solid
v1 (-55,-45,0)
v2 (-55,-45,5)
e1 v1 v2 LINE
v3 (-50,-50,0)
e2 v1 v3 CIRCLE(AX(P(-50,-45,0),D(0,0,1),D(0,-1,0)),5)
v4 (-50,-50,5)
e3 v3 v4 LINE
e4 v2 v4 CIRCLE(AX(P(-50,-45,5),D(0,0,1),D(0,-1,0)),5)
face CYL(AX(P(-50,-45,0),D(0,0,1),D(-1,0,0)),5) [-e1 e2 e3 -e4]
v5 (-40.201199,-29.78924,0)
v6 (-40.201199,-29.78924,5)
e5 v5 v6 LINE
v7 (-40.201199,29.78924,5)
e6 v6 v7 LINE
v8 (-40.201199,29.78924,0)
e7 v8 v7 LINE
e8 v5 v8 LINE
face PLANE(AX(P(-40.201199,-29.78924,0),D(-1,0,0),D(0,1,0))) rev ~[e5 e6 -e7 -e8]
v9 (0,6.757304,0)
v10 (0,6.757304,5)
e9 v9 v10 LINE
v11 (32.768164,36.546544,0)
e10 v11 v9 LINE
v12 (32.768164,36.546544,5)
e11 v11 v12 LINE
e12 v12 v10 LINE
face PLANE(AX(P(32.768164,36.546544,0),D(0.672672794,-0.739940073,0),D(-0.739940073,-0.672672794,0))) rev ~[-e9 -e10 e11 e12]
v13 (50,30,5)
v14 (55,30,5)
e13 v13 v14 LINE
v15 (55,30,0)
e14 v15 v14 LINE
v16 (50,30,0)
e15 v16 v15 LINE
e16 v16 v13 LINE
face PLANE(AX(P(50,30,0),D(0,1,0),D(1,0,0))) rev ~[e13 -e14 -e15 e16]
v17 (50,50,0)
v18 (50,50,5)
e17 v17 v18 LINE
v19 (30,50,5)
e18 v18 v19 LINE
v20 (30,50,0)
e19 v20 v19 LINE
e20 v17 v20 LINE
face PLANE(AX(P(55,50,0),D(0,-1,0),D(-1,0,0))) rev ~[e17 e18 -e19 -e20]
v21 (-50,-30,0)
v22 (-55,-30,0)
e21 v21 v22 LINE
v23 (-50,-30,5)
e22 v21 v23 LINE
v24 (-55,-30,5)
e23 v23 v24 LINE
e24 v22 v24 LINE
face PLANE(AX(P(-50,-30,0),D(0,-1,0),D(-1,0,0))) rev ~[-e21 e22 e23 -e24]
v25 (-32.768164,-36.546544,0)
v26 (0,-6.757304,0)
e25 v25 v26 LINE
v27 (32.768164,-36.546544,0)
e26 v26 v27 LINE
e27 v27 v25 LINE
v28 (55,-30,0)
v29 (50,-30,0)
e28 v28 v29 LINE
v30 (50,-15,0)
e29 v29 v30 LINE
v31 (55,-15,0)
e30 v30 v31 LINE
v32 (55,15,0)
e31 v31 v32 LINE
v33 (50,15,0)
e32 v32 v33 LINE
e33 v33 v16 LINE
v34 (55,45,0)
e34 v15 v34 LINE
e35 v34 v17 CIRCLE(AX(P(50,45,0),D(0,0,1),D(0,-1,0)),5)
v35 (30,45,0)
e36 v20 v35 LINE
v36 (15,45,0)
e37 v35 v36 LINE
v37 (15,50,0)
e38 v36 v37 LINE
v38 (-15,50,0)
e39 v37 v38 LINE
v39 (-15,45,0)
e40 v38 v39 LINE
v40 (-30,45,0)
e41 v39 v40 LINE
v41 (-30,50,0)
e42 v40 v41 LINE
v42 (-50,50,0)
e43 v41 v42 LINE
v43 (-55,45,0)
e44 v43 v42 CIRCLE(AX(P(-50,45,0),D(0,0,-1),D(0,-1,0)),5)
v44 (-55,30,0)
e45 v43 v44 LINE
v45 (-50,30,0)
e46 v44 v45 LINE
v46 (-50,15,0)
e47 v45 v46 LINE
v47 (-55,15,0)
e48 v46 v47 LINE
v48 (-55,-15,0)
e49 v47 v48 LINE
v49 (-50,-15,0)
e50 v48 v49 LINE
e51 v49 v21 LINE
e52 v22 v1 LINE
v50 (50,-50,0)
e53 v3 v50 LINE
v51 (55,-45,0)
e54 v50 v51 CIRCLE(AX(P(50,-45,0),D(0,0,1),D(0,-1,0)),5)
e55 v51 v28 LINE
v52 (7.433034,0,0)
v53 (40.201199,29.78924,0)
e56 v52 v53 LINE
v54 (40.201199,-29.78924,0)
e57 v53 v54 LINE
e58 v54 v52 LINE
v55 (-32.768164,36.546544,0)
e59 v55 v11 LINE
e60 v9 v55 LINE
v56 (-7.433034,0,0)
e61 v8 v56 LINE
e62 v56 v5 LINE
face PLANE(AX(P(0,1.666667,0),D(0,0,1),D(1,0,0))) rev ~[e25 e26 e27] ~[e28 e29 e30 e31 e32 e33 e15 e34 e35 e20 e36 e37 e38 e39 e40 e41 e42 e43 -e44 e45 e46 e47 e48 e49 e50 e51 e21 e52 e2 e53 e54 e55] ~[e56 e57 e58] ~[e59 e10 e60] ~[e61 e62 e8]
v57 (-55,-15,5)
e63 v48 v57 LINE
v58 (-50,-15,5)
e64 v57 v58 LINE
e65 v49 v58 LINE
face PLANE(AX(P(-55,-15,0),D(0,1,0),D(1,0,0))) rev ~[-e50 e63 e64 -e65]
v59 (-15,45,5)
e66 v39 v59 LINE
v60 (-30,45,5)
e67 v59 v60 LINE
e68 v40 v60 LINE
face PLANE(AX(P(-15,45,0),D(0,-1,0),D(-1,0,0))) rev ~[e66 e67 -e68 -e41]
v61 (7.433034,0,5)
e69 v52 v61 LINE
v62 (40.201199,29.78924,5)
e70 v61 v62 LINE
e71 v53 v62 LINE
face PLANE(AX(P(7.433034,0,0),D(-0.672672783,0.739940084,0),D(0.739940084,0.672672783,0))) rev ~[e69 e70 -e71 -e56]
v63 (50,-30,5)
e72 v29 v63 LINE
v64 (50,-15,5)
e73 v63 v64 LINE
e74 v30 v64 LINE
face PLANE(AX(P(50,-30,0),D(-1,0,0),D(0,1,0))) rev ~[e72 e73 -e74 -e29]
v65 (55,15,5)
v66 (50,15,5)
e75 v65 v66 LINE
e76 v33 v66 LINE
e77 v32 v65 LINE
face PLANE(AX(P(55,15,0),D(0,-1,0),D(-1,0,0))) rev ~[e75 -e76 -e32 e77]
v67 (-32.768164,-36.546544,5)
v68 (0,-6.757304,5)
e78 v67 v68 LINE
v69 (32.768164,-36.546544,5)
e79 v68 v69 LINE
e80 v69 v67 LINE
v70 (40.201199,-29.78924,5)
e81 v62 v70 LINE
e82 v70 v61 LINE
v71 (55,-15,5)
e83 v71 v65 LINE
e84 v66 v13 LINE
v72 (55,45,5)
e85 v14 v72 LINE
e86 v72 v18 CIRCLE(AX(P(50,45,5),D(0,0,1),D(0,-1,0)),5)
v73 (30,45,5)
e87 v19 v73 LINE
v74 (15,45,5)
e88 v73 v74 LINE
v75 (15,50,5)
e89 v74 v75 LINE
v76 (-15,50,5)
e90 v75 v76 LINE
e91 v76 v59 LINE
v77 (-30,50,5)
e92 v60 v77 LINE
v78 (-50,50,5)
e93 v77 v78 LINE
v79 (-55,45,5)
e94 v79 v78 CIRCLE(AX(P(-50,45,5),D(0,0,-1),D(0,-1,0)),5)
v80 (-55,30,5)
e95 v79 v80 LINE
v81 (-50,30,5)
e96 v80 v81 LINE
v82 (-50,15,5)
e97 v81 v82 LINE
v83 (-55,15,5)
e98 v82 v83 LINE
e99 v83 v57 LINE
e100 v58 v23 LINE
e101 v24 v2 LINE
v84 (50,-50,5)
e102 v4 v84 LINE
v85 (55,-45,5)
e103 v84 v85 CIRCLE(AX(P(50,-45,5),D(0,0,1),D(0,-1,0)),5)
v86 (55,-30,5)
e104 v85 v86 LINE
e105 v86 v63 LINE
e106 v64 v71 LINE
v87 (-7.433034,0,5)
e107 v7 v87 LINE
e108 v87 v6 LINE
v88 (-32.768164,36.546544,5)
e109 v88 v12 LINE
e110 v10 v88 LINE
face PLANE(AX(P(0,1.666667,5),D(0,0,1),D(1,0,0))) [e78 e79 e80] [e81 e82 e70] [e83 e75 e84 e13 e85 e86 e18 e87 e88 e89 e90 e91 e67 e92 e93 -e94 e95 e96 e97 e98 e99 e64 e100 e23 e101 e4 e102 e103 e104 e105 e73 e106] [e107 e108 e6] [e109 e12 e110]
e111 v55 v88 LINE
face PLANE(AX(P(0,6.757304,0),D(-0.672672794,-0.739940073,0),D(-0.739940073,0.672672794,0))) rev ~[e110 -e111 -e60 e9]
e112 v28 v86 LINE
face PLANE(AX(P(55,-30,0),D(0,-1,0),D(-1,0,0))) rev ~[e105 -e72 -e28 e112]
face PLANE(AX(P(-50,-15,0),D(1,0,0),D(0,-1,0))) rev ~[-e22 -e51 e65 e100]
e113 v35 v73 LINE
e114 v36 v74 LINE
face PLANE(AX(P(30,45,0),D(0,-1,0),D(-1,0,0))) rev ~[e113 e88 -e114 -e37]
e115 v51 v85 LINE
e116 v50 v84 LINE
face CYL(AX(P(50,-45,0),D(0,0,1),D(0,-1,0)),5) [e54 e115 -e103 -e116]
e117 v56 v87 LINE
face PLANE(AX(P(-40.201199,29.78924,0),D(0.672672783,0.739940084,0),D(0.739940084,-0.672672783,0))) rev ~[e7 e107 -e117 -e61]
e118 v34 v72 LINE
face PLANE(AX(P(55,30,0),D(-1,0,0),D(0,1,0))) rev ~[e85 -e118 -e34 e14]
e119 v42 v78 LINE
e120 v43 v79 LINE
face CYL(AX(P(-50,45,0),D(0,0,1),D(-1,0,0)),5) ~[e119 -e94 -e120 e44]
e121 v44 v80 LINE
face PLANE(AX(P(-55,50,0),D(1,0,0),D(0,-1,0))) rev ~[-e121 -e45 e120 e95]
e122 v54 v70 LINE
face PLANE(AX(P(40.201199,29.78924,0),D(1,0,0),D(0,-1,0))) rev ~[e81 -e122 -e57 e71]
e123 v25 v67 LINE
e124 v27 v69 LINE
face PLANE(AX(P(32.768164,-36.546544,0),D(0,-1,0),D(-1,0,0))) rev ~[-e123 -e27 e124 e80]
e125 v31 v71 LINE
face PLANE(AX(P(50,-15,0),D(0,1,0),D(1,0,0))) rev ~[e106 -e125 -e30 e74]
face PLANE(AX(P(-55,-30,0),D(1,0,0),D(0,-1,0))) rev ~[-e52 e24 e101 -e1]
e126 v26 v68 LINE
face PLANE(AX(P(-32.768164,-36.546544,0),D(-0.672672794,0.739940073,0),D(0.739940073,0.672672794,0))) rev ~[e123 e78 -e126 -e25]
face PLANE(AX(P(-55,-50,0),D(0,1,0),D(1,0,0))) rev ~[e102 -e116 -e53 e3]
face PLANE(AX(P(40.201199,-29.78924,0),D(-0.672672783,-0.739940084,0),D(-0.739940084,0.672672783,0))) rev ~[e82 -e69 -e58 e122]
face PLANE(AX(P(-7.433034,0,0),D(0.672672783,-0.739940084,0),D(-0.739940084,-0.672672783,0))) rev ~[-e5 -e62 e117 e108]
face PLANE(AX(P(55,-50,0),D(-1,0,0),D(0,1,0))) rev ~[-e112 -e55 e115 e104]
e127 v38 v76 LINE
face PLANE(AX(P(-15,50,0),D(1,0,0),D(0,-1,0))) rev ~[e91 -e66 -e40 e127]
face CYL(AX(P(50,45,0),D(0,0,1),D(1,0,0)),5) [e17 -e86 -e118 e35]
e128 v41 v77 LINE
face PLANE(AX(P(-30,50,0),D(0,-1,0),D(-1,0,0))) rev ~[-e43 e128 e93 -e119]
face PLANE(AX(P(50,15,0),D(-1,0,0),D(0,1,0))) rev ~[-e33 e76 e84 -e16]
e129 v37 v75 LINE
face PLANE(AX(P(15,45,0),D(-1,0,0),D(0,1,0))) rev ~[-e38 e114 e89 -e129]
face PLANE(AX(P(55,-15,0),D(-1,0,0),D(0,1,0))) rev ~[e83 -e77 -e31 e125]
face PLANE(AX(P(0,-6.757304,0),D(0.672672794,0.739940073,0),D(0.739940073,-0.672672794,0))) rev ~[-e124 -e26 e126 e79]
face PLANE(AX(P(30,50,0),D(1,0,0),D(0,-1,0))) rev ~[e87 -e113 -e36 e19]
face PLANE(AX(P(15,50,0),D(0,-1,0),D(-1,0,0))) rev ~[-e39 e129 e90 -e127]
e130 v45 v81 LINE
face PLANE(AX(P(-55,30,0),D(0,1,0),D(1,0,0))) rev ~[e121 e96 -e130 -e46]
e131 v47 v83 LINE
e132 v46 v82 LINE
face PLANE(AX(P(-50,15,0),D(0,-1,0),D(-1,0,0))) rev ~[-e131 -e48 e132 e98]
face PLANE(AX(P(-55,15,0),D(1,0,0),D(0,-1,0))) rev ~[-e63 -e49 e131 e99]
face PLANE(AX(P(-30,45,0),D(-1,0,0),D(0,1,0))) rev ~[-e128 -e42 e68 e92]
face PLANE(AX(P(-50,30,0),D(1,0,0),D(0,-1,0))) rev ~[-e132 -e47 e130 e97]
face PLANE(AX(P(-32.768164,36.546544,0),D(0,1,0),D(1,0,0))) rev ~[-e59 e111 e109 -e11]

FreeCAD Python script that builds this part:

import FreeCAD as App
import Part
import Sketcher
Q = App.Units.Quantity


def edges_at(feature, points):
    """Names of the edges that pass closest to the given points."""
    edges = feature.Shape.Edges
    near = lambda p: min(range(len(edges)), key=lambda i: edges[i].distToShape(Part.Vertex(*p))[0])
    return sorted({f"Edge{near(p) + 1}" for p in points})

doc = App.newDocument("Part")
params = doc.addObject("Spreadsheet::Sheet", "Params")
for row, (alias, value) in enumerate([
    ("sketch1_width", "110 mm"),
    ("sketch1_width2", "5 mm"),
    ("sketch1_width3", "25 mm"),
    ("sketch1_width4", "15 mm"),
    ("sketch1_height", "20 mm"),
    ("pad1_length", "5 mm"),
    ("fillet_radius", "5 mm"),
    ("fillet2_radius", "5 mm"),
], start=1):
    params.set(f"A{row}", alias)
    params.set(f"B{row}", "=" + value)
    params.setAlias(f"B{row}", alias)

body = doc.addObject("PartDesign::Body", "Body")

# Sketch on XY plane
sketch1 = body.newObject("Sketcher::SketchObject", "Sketch")
sketch1.AttachmentSupport = (doc.getObject("XY_Plane"), [""])
sketch1.MapMode = "FlatFace"
sketch1.addGeometry(Part.LineSegment(App.Vector(-55, -30, 0), App.Vector(-55, -50, 0)), False)
sketch1.addGeometry(Part.LineSegment(App.Vector(-55, -50, 0), App.Vector(55, -50, 0)), False)
sketch1.addGeometry(Part.LineSegment(App.Vector(55, -50, 0), App.Vector(55, -30, 0)), False)
sketch1.addGeometry(Part.LineSegment(App.Vector(55, -30, 0), App.Vector(50, -30, 0)), False)
sketch1.addGeometry(Part.LineSegment(App.Vector(50, -30, 0), App.Vector(50, -15, 0)), False)
sketch1.addGeometry(Part.LineSegment(App.Vector(50, -15, 0), App.Vector(55, -15, 0)), False)
sketch1.addGeometry(Part.LineSegment(App.Vector(55, -15, 0), App.Vector(55, 15, 0)), False)
sketch1.addGeometry(Part.LineSegment(App.Vector(55, 15, 0), App.Vector(50, 15, 0)), False)
sketch1.addGeometry(Part.LineSegment(App.Vector(50, 15, 0), App.Vector(50, 30, 0)), False)
sketch1.addGeometry(Part.LineSegment(App.Vector(50, 30, 0), App.Vector(55, 30, 0)), False)
sketch1.addGeometry(Part.LineSegment(App.Vector(55, 30, 0), App.Vector(55, 50, 0)), False)
sketch1.addGeometry(Part.LineSegment(App.Vector(55, 50, 0), App.Vector(30, 50, 0)), False)
sketch1.addGeometry(Part.LineSegment(App.Vector(30, 50, 0), App.Vector(30, 45, 0)), False)
sketch1.addGeometry(Part.LineSegment(App.Vector(30, 45, 0), App.Vector(15, 45, 0)), False)
sketch1.addGeometry(Part.LineSegment(App.Vector(15, 45, 0), App.Vector(15, 50, 0)), False)
sketch1.addGeometry(Part.LineSegment(App.Vector(15, 50, 0), App.Vector(-15, 50, 0)), False)
sketch1.addGeometry(Part.LineSegment(App.Vector(-15, 50, 0), App.Vector(-15, 45, 0)), False)
sketch1.addGeometry(Part.LineSegment(App.Vector(-15, 45, 0), App.Vector(-30, 45, 0)), False)
sketch1.addGeometry(Part.LineSegment(App.Vector(-30, 45, 0), App.Vector(-30, 50, 0)), False)
sketch1.addGeometry(Part.LineSegment(App.Vector(-30, 50, 0), App.Vector(-55, 50, 0)), False)
sketch1.addGeometry(Part.LineSegment(App.Vector(-55, 50, 0), App.Vector(-55, 30, 0)), False)
sketch1.addGeometry(Part.LineSegment(App.Vector(-55, 30, 0), App.Vector(-50, 30, 0)), False)
sketch1.addGeometry(Part.LineSegment(App.Vector(-50, 30, 0), App.Vector(-50, 15, 0)), False)
sketch1.addGeometry(Part.LineSegment(App.Vector(-50, 15, 0), App.Vector(-55, 15, 0)), False)
sketch1.addGeometry(Part.LineSegment(App.Vector(-55, 15, 0), App.Vector(-55, -15, 0)), False)
sketch1.addGeometry(Part.LineSegment(App.Vector(-55, -15, 0), App.Vector(-50, -15, 0)), False)
sketch1.addGeometry(Part.LineSegment(App.Vector(-50, -15, 0), App.Vector(-50, -30, 0)), False)
sketch1.addGeometry(Part.LineSegment(App.Vector(-50, -30, 0), App.Vector(-55, -30, 0)), False)
sketch1.addGeometry(Part.LineSegment(App.Vector(-33, -37, 0), App.Vector(0, -7, 0)), False)
sketch1.addGeometry(Part.LineSegment(App.Vector(0, -7, 0), App.Vector(33, -37, 0)), False)
sketch1.addGeometry(Part.LineSegment(App.Vector(33, -37, 0), App.Vector(-33, -37, 0)), False)
sketch1.addGeometry(Part.LineSegment(App.Vector(-7, 0, 0), App.Vector(-40, -30, 0)), False)
sketch1.addGeometry(Part.LineSegment(App.Vector(-40, -30, 0), App.Vector(-40, 30, 0)), False)
sketch1.addGeometry(Part.LineSegment(App.Vector(-40, 30, 0), App.Vector(-7, 0, 0)), False)
sketch1.addGeometry(Part.LineSegment(App.Vector(40, -30, 0), App.Vector(7, 0, 0)), False)
sketch1.addGeometry(Part.LineSegment(App.Vector(7, 0, 0), App.Vector(40, 30, 0)), False)
sketch1.addGeometry(Part.LineSegment(App.Vector(40, 30, 0), App.Vector(40, -30, 0)), False)
sketch1.addGeometry(Part.LineSegment(App.Vector(0, 7, 0), App.Vector(-33, 37, 0)), False)
sketch1.addGeometry(Part.LineSegment(App.Vector(-33, 37, 0), App.Vector(33, 37, 0)), False)
sketch1.addGeometry(Part.LineSegment(App.Vector(33, 37, 0), App.Vector(0, 7, 0)), False)
sketch1.addConstraint(Sketcher.Constraint("Coincident", 0, 2, 1, 1))
sketch1.addConstraint(Sketcher.Constraint("Coincident", 1, 2, 2, 1))
sketch1.addConstraint(Sketcher.Constraint("Coincident", 2, 2, 3, 1))
sketch1.addConstraint(Sketcher.Constraint("Coincident", 3, 2, 4, 1))
sketch1.addConstraint(Sketcher.Constraint("Coincident", 4, 2, 5, 1))
sketch1.addConstraint(Sketcher.Constraint("Coincident", 5, 2, 6, 1))
sketch1.addConstraint(Sketcher.Constraint("Coincident", 6, 2, 7, 1))
sketch1.addConstraint(Sketcher.Constraint("Coincident", 7, 2, 8, 1))
sketch1.addConstraint(Sketcher.Constraint("Coincident", 8, 2, 9, 1))
sketch1.addConstraint(Sketcher.Constraint("Coincident", 9, 2, 10, 1))
sketch1.addConstraint(Sketcher.Constraint("Coincident", 10, 2, 11, 1))
sketch1.addConstraint(Sketcher.Constraint("Coincident", 11, 2, 12, 1))
sketch1.addConstraint(Sketcher.Constraint("Coincident", 12, 2, 13, 1))
sketch1.addConstraint(Sketcher.Constraint("Coincident", 13, 2, 14, 1))
sketch1.addConstraint(Sketcher.Constraint("Coincident", 14, 2, 15, 1))
sketch1.addConstraint(Sketcher.Constraint("Coincident", 15, 2, 16, 1))
sketch1.addConstraint(Sketcher.Constraint("Coincident", 16, 2, 17, 1))
sketch1.addConstraint(Sketcher.Constraint("Coincident", 17, 2, 18, 1))
sketch1.addConstraint(Sketcher.Constraint("Coincident", 18, 2, 19, 1))
sketch1.addConstraint(Sketcher.Constraint("Coincident", 19, 2, 20, 1))
sketch1.addConstraint(Sketcher.Constraint("Coincident", 20, 2, 21, 1))
sketch1.addConstraint(Sketcher.Constraint("Coincident", 21, 2, 22, 1))
sketch1.addConstraint(Sketcher.Constraint("Coincident", 22, 2, 23, 1))
sketch1.addConstraint(Sketcher.Constraint("Coincident", 23, 2, 24, 1))
sketch1.addConstraint(Sketcher.Constraint("Coincident", 24, 2, 25, 1))
sketch1.addConstraint(Sketcher.Constraint("Coincident", 25, 2, 26, 1))
sketch1.addConstraint(Sketcher.Constraint("Coincident", 26, 2, 27, 1))
sketch1.addConstraint(Sketcher.Constraint("Coincident", 27, 2, 0, 1))
sketch1.addConstraint(Sketcher.Constraint("Coincident", 28, 2, 29, 1))
sketch1.addConstraint(Sketcher.Constraint("Coincident", 29, 2, 30, 1))
sketch1.addConstraint(Sketcher.Constraint("Coincident", 30, 2, 28, 1))
sketch1.addConstraint(Sketcher.Constraint("Coincident", 31, 2, 32, 1))
sketch1.addConstraint(Sketcher.Constraint("Coincident", 32, 2, 33, 1))
sketch1.addConstraint(Sketcher.Constraint("Coincident", 33, 2, 31, 1))
sketch1.addConstraint(Sketcher.Constraint("Coincident", 34, 2, 35, 1))
sketch1.addConstraint(Sketcher.Constraint("Coincident", 35, 2, 36, 1))
sketch1.addConstraint(Sketcher.Constraint("Coincident", 36, 2, 34, 1))
sketch1.addConstraint(Sketcher.Constraint("Coincident", 37, 2, 38, 1))
sketch1.addConstraint(Sketcher.Constraint("Coincident", 38, 2, 39, 1))
sketch1.addConstraint(Sketcher.Constraint("Coincident", 39, 2, 37, 1))
sketch1.addConstraint(Sketcher.Constraint("Vertical", 0))
sketch1.addConstraint(Sketcher.Constraint("Horizontal", 1))
sketch1.addConstraint(Sketcher.Constraint("Vertical", 2))
sketch1.addConstraint(Sketcher.Constraint("Horizontal", 3))
sketch1.addConstraint(Sketcher.Constraint("Vertical", 4))
sketch1.addConstraint(Sketcher.Constraint("Horizontal", 5))
sketch1.addConstraint(Sketcher.Constraint("Vertical", 6))
sketch1.addConstraint(Sketcher.Constraint("Horizontal", 7))
sketch1.addConstraint(Sketcher.Constraint("Vertical", 8))
sketch1.addConstraint(Sketcher.Constraint("Horizontal", 9))
sketch1.addConstraint(Sketcher.Constraint("Vertical", 10))
sketch1.addConstraint(Sketcher.Constraint("Horizontal", 11))
sketch1.addConstraint(Sketcher.Constraint("Vertical", 12))
sketch1.addConstraint(Sketcher.Constraint("Horizontal", 13))
sketch1.addConstraint(Sketcher.Constraint("Vertical", 14))
sketch1.addConstraint(Sketcher.Constraint("Horizontal", 15))
sketch1.addConstraint(Sketcher.Constraint("Vertical", 16))
sketch1.addConstraint(Sketcher.Constraint("Horizontal", 17))
sketch1.addConstraint(Sketcher.Constraint("Vertical", 18))
sketch1.addConstraint(Sketcher.Constraint("Horizontal", 19))
sketch1.addConstraint(Sketcher.Constraint("Vertical", 20))
sketch1.addConstraint(Sketcher.Constraint("Horizontal", 21))
sketch1.addConstraint(Sketcher.Constraint("Vertical", 22))
sketch1.addConstraint(Sketcher.Constraint("Horizontal", 23))
sketch1.addConstraint(Sketcher.Constraint("Vertical", 24))
sketch1.addConstraint(Sketcher.Constraint("Horizontal", 25))
sketch1.addConstraint(Sketcher.Constraint("Vertical", 26))
sketch1.addConstraint(Sketcher.Constraint("Horizontal", 27))
sketch1.addConstraint(Sketcher.Constraint("Horizontal", 30))
sketch1.addConstraint(Sketcher.Constraint("Vertical", 32))
sketch1.addConstraint(Sketcher.Constraint("Vertical", 36))
sketch1.addConstraint(Sketcher.Constraint("Horizontal", 38))
sketch1.addConstraint(Sketcher.Constraint("Symmetric", 0, 2, 10, 2, -1, 1))
sketch1.addConstraint(Sketcher.Constraint("Symmetric", 1, 2, 19, 2, -1, 1))
sketch1.addConstraint(Sketcher.Constraint("Symmetric", 3, 2, 21, 2, -1, 1))
sketch1.addConstraint(Sketcher.Constraint("Symmetric", 5, 2, 23, 2, -1, 1))
sketch1.addConstraint(Sketcher.Constraint("Symmetric", 7, 2, 25, 2, -1, 1))
sketch1.addConstraint(Sketcher.Constraint("Symmetric", 33, 2, 34, 2, -1, 1))
sketch1.addConstraint(Sketcher.Constraint("Symmetric", 31, 2, 35, 2, -1, 1))
sketch1.addConstraint(Sketcher.Constraint("Symmetric", 29, 2, 37, 2, -1, 1))
sketch1.addConstraint(Sketcher.Constraint("Symmetric", 28, 2, 39, 2, -1, 1))
sketch1.addConstraint(Sketcher.Constraint("Symmetric", 13, 2, 16, 2, -2))
sketch1.addConstraint(Sketcher.Constraint("Symmetric", 9, 2, 20, 2, -2))
sketch1.addConstraint(Sketcher.Constraint("Symmetric", 7, 2, 22, 2, -2))
sketch1.addConstraint(Sketcher.Constraint("PointOnObject", 28, 2, -2))
sketch1.addConstraint(Sketcher.Constraint("PointOnObject", 33, 2, -1))
sketch1.addConstraint(Sketcher.Constraint("Parallel", 28, 31))
sketch1.addConstraint(Sketcher.Constraint("Parallel", 29, 33))
sketch1.addConstraint(Sketcher.Constraint("Parallel", 33, 34))
sketch1.addConstraint(Sketcher.Constraint("Parallel", 35, 39))
sketch1.addConstraint(Sketcher.Constraint("Horizontal", 11, 2, 14, 2))
sketch1.addConstraint(Sketcher.Constraint("Horizontal", 3, 2, 26, 2))
sketch1.addConstraint(Sketcher.Constraint("Horizontal", 32, 2, 35, 2))
sketch1.addConstraint(Sketcher.Constraint("Vertical", 2, 2, 5, 2))
sketch1.addConstraint(Sketcher.Constraint("Equal", 13, 17))
sketch1.addConstraint(Sketcher.Constraint("Equal", 17, 4))
sketch1.addConstraint(Sketcher.Constraint("Equal", 15, 6))
sketch1.addConstraint(Sketcher.Constraint("Equal", 27, 12))
sketch1.addConstraint(Sketcher.Constraint("Equal", 29, 31))
sketch1.addConstraint(Sketcher.Constraint("DistanceX", 1, 1, 1, 2, Q("110 mm")))
sketch1.addConstraint(Sketcher.Constraint("DistanceX", 3, 2, 3, 1, Q("5 mm")))
sketch1.addConstraint(Sketcher.Constraint("DistanceX", 11, 2, 11, 1, Q("25 mm")))
sketch1.addConstraint(Sketcher.Constraint("DistanceX", 13, 2, 13, 1, Q("15 mm")))
sketch1.addConstraint(Sketcher.Constraint("DistanceY", 0, 2, 0, 1, Q("20 mm")))
sketch1.addConstraint(Sketcher.Constraint("DistanceY", 32, 1, 32, 2, Q("59.57848 mm")))
sketch1.addConstraint(Sketcher.Constraint("DistanceX", 31, 2, -1, 1, Q("40.201199 mm")))
sketch1.addConstraint(Sketcher.Constraint("Distance", 28, Q("44.284889 mm")))
sketch1.addConstraint(Sketcher.Constraint("DistanceY", 28, 2, 39, 2, Q("13.514608 mm")))
sketch1.setExpression("Constraints[99]", "Params.sketch1_width")
sketch1.setExpression("Constraints[100]", "Params.sketch1_width2")
sketch1.setExpression("Constraints[101]", "Params.sketch1_width3")
sketch1.setExpression("Constraints[102]", "Params.sketch1_width4")
sketch1.setExpression("Constraints[103]", "Params.sketch1_height")
pad1 = body.newObject("PartDesign::Pad", "Pad")
pad1.Profile = sketch1
pad1.setExpression("Length", "Params.pad1_length")
doc.recompute()

fillet = body.newObject("PartDesign::Fillet", "Fillet")
fillet.Base = (pad1, edges_at(pad1, [(55, 50, 2.5), (-55, 50, 2.5)]))
fillet.setExpression("Radius", "Params.fillet_radius")
doc.recompute()

fillet2 = body.newObject("PartDesign::Fillet", "Fillet001")
fillet2.Base = (fillet, edges_at(fillet, [(55, -50, 2.5), (-55, -50, 2.5)]))
fillet2.setExpression("Radius", "Params.fillet2_radius")

doc.recompute()
